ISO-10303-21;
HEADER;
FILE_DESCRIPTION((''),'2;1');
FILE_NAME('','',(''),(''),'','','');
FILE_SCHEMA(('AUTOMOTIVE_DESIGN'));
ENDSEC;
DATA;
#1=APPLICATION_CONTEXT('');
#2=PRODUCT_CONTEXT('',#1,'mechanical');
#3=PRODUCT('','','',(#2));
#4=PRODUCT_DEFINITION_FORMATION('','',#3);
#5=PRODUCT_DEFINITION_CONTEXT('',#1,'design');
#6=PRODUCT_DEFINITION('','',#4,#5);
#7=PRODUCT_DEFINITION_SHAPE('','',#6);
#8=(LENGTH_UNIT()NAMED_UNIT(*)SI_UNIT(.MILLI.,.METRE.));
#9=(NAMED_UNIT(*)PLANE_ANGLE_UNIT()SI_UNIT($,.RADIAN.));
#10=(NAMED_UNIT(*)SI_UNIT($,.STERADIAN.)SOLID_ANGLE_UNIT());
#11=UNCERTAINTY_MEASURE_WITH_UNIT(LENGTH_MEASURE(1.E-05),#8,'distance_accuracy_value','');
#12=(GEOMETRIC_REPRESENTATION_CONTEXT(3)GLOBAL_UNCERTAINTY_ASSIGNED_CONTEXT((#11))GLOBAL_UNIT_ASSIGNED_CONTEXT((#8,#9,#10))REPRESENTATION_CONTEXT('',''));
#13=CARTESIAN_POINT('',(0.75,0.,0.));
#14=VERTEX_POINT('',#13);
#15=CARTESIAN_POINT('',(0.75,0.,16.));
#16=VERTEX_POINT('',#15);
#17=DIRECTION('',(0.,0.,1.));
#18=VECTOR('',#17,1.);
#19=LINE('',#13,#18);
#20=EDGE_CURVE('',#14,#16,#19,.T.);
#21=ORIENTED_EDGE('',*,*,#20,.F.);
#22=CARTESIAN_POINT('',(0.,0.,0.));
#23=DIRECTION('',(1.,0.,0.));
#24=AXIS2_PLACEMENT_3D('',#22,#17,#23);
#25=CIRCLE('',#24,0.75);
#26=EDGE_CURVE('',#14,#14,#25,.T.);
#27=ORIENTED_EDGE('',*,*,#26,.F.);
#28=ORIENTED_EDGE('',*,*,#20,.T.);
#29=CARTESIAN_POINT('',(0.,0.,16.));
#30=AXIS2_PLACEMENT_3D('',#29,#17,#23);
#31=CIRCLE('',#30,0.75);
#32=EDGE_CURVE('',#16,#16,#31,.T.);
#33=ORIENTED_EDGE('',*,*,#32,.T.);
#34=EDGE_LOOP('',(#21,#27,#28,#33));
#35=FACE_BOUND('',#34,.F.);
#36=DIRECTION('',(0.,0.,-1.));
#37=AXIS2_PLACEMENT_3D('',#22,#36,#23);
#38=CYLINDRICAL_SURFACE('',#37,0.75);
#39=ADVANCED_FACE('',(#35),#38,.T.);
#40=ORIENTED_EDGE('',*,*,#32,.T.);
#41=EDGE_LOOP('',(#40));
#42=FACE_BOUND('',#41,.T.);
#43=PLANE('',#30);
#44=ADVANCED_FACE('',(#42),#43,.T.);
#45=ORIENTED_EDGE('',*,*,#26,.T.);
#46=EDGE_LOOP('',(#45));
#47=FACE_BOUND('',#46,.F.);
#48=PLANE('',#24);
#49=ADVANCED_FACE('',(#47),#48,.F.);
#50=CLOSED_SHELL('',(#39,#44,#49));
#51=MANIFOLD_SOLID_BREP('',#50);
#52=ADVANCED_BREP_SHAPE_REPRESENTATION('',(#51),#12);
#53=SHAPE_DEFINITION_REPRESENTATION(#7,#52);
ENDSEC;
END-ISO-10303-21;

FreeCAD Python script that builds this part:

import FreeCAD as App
import Part
import Sketcher

V = App.Vector
Q = App.Units.Quantity

doc = App.newDocument("Part")
body = doc.addObject("PartDesign::Body", "Body")

# Sketch on XY plane
sketch1 = body.newObject("Sketcher::SketchObject", "Sketch")
sketch1.AttachmentSupport = (doc.getObject("XY_Plane"), [""])
sketch1.MapMode = "FlatFace"
sketch1.addGeometry(Part.Circle(V(0, 0, 0), V(0, 0, 1), 0.8), False)
sketch1.addConstraint([
    Sketcher.Constraint("Coincident", 0, 3, -1, 1),
    Sketcher.Constraint("Diameter", 0, Q("1.5 mm")),
])
pad1 = body.newObject("PartDesign::Pad", "Pad")
pad1.Profile = sketch1
pad1.Length = 16

doc.recompute()
